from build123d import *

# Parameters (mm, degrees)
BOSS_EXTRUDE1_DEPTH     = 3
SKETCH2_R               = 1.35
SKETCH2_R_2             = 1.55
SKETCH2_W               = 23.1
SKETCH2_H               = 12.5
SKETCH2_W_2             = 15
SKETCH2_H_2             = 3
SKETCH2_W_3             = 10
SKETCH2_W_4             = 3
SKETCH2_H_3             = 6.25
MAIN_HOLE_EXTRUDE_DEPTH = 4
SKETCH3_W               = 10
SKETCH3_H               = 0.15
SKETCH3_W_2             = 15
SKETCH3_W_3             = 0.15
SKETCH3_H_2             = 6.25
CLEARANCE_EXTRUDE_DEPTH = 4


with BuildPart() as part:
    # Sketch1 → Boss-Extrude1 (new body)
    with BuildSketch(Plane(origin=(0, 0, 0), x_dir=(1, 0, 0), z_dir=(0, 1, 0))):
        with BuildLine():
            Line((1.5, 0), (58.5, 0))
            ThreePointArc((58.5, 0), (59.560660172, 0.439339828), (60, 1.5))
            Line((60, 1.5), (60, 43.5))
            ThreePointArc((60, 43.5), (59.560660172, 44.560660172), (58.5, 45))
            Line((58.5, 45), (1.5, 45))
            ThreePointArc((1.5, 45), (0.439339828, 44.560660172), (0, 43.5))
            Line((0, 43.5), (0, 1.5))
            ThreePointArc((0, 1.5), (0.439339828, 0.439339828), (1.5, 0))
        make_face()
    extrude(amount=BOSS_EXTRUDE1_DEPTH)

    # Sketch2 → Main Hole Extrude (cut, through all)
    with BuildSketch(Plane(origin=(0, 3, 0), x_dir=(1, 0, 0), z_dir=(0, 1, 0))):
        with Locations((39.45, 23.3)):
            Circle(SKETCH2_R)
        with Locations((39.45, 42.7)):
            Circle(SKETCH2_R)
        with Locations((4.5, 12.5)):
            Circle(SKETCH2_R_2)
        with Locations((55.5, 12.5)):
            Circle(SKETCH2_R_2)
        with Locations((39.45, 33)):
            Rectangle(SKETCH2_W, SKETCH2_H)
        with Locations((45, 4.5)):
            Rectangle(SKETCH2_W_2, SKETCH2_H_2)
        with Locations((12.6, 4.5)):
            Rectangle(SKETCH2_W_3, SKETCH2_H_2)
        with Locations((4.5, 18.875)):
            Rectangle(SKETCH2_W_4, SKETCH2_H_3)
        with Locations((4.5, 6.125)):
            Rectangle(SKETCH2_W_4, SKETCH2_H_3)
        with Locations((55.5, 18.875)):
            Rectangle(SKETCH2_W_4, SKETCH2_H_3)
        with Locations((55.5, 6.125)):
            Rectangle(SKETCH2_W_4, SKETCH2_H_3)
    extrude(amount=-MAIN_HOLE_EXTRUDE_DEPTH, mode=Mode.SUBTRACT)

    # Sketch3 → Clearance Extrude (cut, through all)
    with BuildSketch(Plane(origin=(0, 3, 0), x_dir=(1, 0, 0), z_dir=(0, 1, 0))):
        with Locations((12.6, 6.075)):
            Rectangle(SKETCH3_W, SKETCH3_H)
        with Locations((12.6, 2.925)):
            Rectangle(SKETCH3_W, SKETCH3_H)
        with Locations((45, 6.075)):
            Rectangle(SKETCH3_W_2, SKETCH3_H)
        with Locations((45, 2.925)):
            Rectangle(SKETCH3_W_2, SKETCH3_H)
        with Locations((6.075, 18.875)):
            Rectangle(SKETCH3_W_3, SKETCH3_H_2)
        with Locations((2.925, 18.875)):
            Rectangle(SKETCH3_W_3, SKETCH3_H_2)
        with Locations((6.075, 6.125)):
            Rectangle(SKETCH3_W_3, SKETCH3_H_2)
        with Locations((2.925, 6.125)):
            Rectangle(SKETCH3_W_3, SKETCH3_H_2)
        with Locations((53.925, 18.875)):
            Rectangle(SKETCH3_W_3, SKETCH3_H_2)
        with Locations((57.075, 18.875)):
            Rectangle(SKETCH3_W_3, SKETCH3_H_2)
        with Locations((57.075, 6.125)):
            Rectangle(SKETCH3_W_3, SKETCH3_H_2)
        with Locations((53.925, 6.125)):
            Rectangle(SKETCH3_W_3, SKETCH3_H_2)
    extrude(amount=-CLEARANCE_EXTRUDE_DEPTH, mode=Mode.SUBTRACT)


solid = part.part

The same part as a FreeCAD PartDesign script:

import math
import FreeCAD as App
import Part
import Sketcher
from FreeCAD import Vector
Q = App.Units.Quantity


def add_polygon(sketch, points):
    """Adds a closed chain of lines whose ends are joined by coincident constraints."""
    first, n = sketch.GeometryCount, len(points)
    for a, b in zip(points, points[1:] + points[:1]):
        sketch.addGeometry(Part.LineSegment(App.Vector(*a, 0), App.Vector(*b, 0)), False)
    for i in range(n):
        sketch.addConstraint(Sketcher.Constraint("Coincident", first + i, 2, first + (i + 1) % n, 1))

doc = App.newDocument("Part")
body = doc.addObject("PartDesign::Body", "Body")

# Sketch on XZ plane
sketch1 = body.newObject("Sketcher::SketchObject", "Sketch")
sketch1.AttachmentSupport = (doc.getObject("XZ_Plane"), [""])
sketch1.MapMode = "FlatFace"
sketch1.addGeometry(Part.LineSegment(Vector(1.5, 0, 0), Vector(58.5, 0, 0)), False)
sketch1.addGeometry(Part.ArcOfCircle(Part.Circle(Vector(58.5, -1.5, 0), Vector(0, 0, 1), 1.5), math.radians(0), math.radians(90)), False)
sketch1.addGeometry(Part.LineSegment(Vector(60, -1.5, 0), Vector(60, -43.5, 0)), False)
sketch1.addGeometry(Part.ArcOfCircle(Part.Circle(Vector(58.5, -43.5, 0), Vector(0, 0, 1), 1.5), math.radians(-90), math.radians(0)), False)
sketch1.addGeometry(Part.LineSegment(Vector(58.5, -45, 0), Vector(1.5, -45, 0)), False)
sketch1.addGeometry(Part.ArcOfCircle(Part.Circle(Vector(1.5, -43.5, 0), Vector(0, 0, 1), 1.5), math.radians(180), math.radians(270)), False)
sketch1.addGeometry(Part.LineSegment(Vector(0, -43.5, 0), Vector(0, -1.5, 0)), False)
sketch1.addGeometry(Part.ArcOfCircle(Part.Circle(Vector(1.5, -1.5, 0), Vector(0, 0, 1), 1.5), math.radians(90), math.radians(180)), False)
sketch1.addConstraint(Sketcher.Constraint("Tangent", 0, 2, 1, 2))
sketch1.addConstraint(Sketcher.Constraint("Tangent", 1, 1, 2, 1))
sketch1.addConstraint(Sketcher.Constraint("Tangent", 2, 2, 3, 2))
sketch1.addConstraint(Sketcher.Constraint("Tangent", 3, 1, 4, 1))
sketch1.addConstraint(Sketcher.Constraint("Tangent", 4, 2, 5, 2))
sketch1.addConstraint(Sketcher.Constraint("Tangent", 5, 1, 6, 1))
sketch1.addConstraint(Sketcher.Constraint("Tangent", 6, 2, 7, 2))
sketch1.addConstraint(Sketcher.Constraint("Tangent", 7, 1, 0, 1))
sketch1.addConstraint(Sketcher.Constraint("Horizontal", 0))
sketch1.addConstraint(Sketcher.Constraint("Vertical", 2))
sketch1.addConstraint(Sketcher.Constraint("Horizontal", 4))
sketch1.addConstraint(Sketcher.Constraint("Vertical", 6))
sketch1.addConstraint(Sketcher.Constraint("Equal", 1, 3))
sketch1.addConstraint(Sketcher.Constraint("Equal", 3, 5))
sketch1.addConstraint(Sketcher.Constraint("Equal", 5, 7))
sketch1.addConstraint(Sketcher.Constraint("PointOnObject", 0, 2, -1))
sketch1.addConstraint(Sketcher.Constraint("PointOnObject", 5, 1, -2))
sketch1.addConstraint(Sketcher.Constraint("Radius", 1, Q("1.5 mm")))
sketch1.addConstraint(Sketcher.Constraint("DistanceX", 0, 1, 0, 2, Q("57 mm")))
sketch1.addConstraint(Sketcher.Constraint("DistanceY", 2, 2, 2, 1, Q("42 mm")))
pad1 = body.newObject("PartDesign::Pad", "Pad")
pad1.Profile = sketch1
pad1.Length = 3
pad1.Reversed = True

# Sketch on XZ plane
sketch2 = body.newObject("Sketcher::SketchObject", "Sketch001")
sketch2.AttachmentSupport = (doc.getObject("XZ_Plane"), [""])
sketch2.MapMode = "FlatFace"
sketch2.AttachmentOffset = App.Placement(Vector(0, 0, -3), App.Rotation())
sketch2.addGeometry(Part.Circle(Vector(39.5, -23.3, 0), Vector(0, 0, 1), 1.4), False)  # 0
sketch2.addGeometry(Part.Circle(Vector(39.5, -42.7, 0), Vector(0, 0, 1), 1.4), False)  # 1
sketch2.addGeometry(Part.Circle(Vector(4.5, -12.5, 0), Vector(0, 0, 1), 1.6), False)  # 2
sketch2.addGeometry(Part.Circle(Vector(55.5, -12.5, 0), Vector(0, 0, 1), 1.6), False)  # 3
add_polygon(sketch2, [(27.9, -39.2), (27.9, -26.8), (51, -26.8), (51, -39.2)])  # lines 4-7
add_polygon(sketch2, [(37.5, -6), (37.5, -3), (52.5, -3), (52.5, -6)])  # lines 8-11
add_polygon(sketch2, [(7.6, -6), (7.6, -3), (17.6, -3), (17.6, -6)])  # lines 12-15
add_polygon(sketch2, [(3, -22), (3, -15.8), (6, -15.8), (6, -22)])  # lines 16-19
add_polygon(sketch2, [(3, -9.2), (3, -3), (6, -3), (6, -9.2)])  # lines 20-23
add_polygon(sketch2, [(54, -22), (54, -15.8), (57, -15.8), (57, -22)])  # lines 24-27
add_polygon(sketch2, [(54, -9.2), (54, -3), (57, -3), (57, -9.2)])  # lines 28-31
sketch2.addConstraint(Sketcher.Constraint("Vertical", 4))
sketch2.addConstraint(Sketcher.Constraint("Horizontal", 5))
sketch2.addConstraint(Sketcher.Constraint("Vertical", 6))
sketch2.addConstraint(Sketcher.Constraint("Horizontal", 7))
sketch2.addConstraint(Sketcher.Constraint("Vertical", 8))
sketch2.addConstraint(Sketcher.Constraint("Horizontal", 9))
sketch2.addConstraint(Sketcher.Constraint("Vertical", 10))
sketch2.addConstraint(Sketcher.Constraint("Horizontal", 11))
sketch2.addConstraint(Sketcher.Constraint("Vertical", 12))
sketch2.addConstraint(Sketcher.Constraint("Horizontal", 13))
sketch2.addConstraint(Sketcher.Constraint("Vertical", 14))
sketch2.addConstraint(Sketcher.Constraint("Horizontal", 15))
sketch2.addConstraint(Sketcher.Constraint("Vertical", 16))
sketch2.addConstraint(Sketcher.Constraint("Horizontal", 17))
sketch2.addConstraint(Sketcher.Constraint("Vertical", 18))
sketch2.addConstraint(Sketcher.Constraint("Horizontal", 19))
sketch2.addConstraint(Sketcher.Constraint("Vertical", 20))
sketch2.addConstraint(Sketcher.Constraint("Horizontal", 21))
sketch2.addConstraint(Sketcher.Constraint("Vertical", 22))
sketch2.addConstraint(Sketcher.Constraint("Horizontal", 23))
sketch2.addConstraint(Sketcher.Constraint("Vertical", 24))
sketch2.addConstraint(Sketcher.Constraint("Horizontal", 25))
sketch2.addConstraint(Sketcher.Constraint("Vertical", 26))
sketch2.addConstraint(Sketcher.Constraint("Horizontal", 27))
sketch2.addConstraint(Sketcher.Constraint("Vertical", 28))
sketch2.addConstraint(Sketcher.Constraint("Horizontal", 29))
sketch2.addConstraint(Sketcher.Constraint("Vertical", 30))
sketch2.addConstraint(Sketcher.Constraint("Horizontal", 31))
sketch2.addConstraint(Sketcher.Constraint("Equal", 0, 1))
sketch2.addConstraint(Sketcher.Constraint("Equal", 2, 3))
sketch2.addConstraint(Sketcher.Constraint("Horizontal", 2, 3, 3, 3))
sketch2.addConstraint(Sketcher.Constraint("Horizontal", 9, 2, 12, 2))
sketch2.addConstraint(Sketcher.Constraint("Horizontal", 11, 2, 14, 2))
sketch2.addConstraint(Sketcher.Constraint("Horizontal", 13, 2, 20, 2))
sketch2.addConstraint(Sketcher.Constraint("Horizontal", 17, 2, 24, 2))
sketch2.addConstraint(Sketcher.Constraint("Horizontal", 19, 2, 26, 2))
sketch2.addConstraint(Sketcher.Constraint("Horizontal", 21, 2, 28, 2))
sketch2.addConstraint(Sketcher.Constraint("Horizontal", 23, 2, 30, 2))
sketch2.addConstraint(Sketcher.Constraint("Vertical", 0, 3, 1, 3))
sketch2.addConstraint(Sketcher.Constraint("Vertical", 19, 2, 20, 2))
sketch2.addConstraint(Sketcher.Constraint("Vertical", 18, 2, 21, 2))
sketch2.addConstraint(Sketcher.Constraint("Vertical", 27, 2, 28, 2))
sketch2.addConstraint(Sketcher.Constraint("Vertical", 26, 2, 29, 2))
sketch2.addConstraint(Sketcher.Constraint("Equal", 23, 25))
sketch2.addConstraint(Sketcher.Constraint("Equal", 31, 8))
sketch2.addConstraint(Sketcher.Constraint("Equal", 18, 20))
sketch2.addConstraint(Sketcher.Constraint("Diameter", 0, Q("2.7 mm")))
sketch2.addConstraint(Sketcher.Constraint("Diameter", 2, Q("3.1 mm")))
sketch2.addConstraint(Sketcher.Constraint("DistanceX", 9, 1, 9, 2, Q("15 mm")))
sketch2.addConstraint(Sketcher.Constraint("DistanceX", 13, 1, 13, 2, Q("10 mm")))
sketch2.addConstraint(Sketcher.Constraint("DistanceX", 17, 1, 17, 2, Q("3 mm")))
sketch2.addConstraint(Sketcher.Constraint("DistanceX", 5, 1, 5, 2, Q("23.1 mm")))
sketch2.addConstraint(Sketcher.Constraint("DistanceY", 4, 1, 4, 2, Q("12.5 mm")))
sketch2.addConstraint(Sketcher.Constraint("DistanceX", -1, 1, 5, 2, Q("51 mm")))
sketch2.addConstraint(Sketcher.Constraint("DistanceY", 8, 2, -1, 1, Q("3 mm")))
sketch2.addConstraint(Sketcher.Constraint("DistanceX", -1, 1, 16, 2, Q("3 mm")))
sketch2.addConstraint(Sketcher.Constraint("DistanceY", 18, 2, -1, 1, Q("22 mm")))
sketch2.addConstraint(Sketcher.Constraint("DistanceX", -1, 1, 24, 2, Q("54 mm")))
sketch2.addConstraint(Sketcher.Constraint("DistanceX", 2, 3, 3, 3, Q("51 mm")))
sketch2.addConstraint(Sketcher.Constraint("DistanceX", 8, 2, 3, 3, Q("18 mm")))
sketch2.addConstraint(Sketcher.Constraint("DistanceY", 5, 2, 24, 2, Q("11 mm")))
sketch2.addConstraint(Sketcher.Constraint("DistanceY", 16, 1, 16, 2, Q("6.25 mm")))
sketch2.addConstraint(Sketcher.Constraint("DistanceY", 0, 3, -1, 1, Q("23.3 mm")))
sketch2.addConstraint(Sketcher.Constraint("DistanceY", 1, 3, -1, 1, Q("42.7 mm")))
sketch2.addConstraint(Sketcher.Constraint("DistanceX", -1, 1, 2, 3, Q("4.5 mm")))
sketch2.addConstraint(Sketcher.Constraint("DistanceY", 2, 3, -1, 1, Q("12.5 mm")))
sketch2.addConstraint(Sketcher.Constraint("DistanceX", -1, 1, 12, 2, Q("7.6 mm")))
sketch2.addConstraint(Sketcher.Constraint("DistanceX", -1, 1, 0, 3, Q("39.45 mm")))
pocket1 = body.newObject("PartDesign::Pocket", "Pocket")
pocket1.Profile = sketch2
pocket1.Type = "ThroughAll"
pocket1.Reversed = True

# Sketch on XZ plane
sketch3 = body.newObject("Sketcher::SketchObject", "Sketch002")
sketch3.AttachmentSupport = (doc.getObject("XZ_Plane"), [""])
sketch3.MapMode = "FlatFace"
sketch3.AttachmentOffset = App.Placement(Vector(0, 0, -3), App.Rotation())
add_polygon(sketch3, [(7.6, -6.15), (7.6, -6), (17.6, -6), (17.6, -6.15)])  # lines 0-3
add_polygon(sketch3, [(7.6, -3), (7.6, -2.85), (17.6, -2.85), (17.6, -3)])  # lines 4-7
add_polygon(sketch3, [(37.5, -6.15), (37.5, -6), (52.5, -6), (52.5, -6.15)])  # lines 8-11
add_polygon(sketch3, [(37.5, -3), (37.5, -2.85), (52.5, -2.85), (52.5, -3)])  # lines 12-15
add_polygon(sketch3, [(6, -22), (6, -15.75), (6.15, -15.75), (6.15, -22)])  # lines 16-19
add_polygon(sketch3, [(2.85, -22), (2.85, -15.75), (3, -15.75), (3, -22)])  # lines 20-23
add_polygon(sketch3, [(6, -9.25), (6, -3), (6.15, -3), (6.15, -9.25)])  # lines 24-27
add_polygon(sketch3, [(2.85, -9.25), (2.85, -3), (3, -3), (3, -9.25)])  # lines 28-31
add_polygon(sketch3, [(53.85, -22), (53.85, -15.75), (54, -15.75), (54, -22)])  # lines 32-35
add_polygon(sketch3, [(57, -22), (57, -15.75), (57.15, -15.75), (57.15, -22)])  # lines 36-39
add_polygon(sketch3, [(57, -9.25), (57, -3), (57.15, -3), (57.15, -9.25)])  # lines 40-43
add_polygon(sketch3, [(53.85, -9.25), (53.85, -3), (54, -3), (54, -9.25)])  # lines 44-47
sketch3.addConstraint(Sketcher.Constraint("Vertical", 0))
sketch3.addConstraint(Sketcher.Constraint("Horizontal", 1))
sketch3.addConstraint(Sketcher.Constraint("Vertical", 2))
sketch3.addConstraint(Sketcher.Constraint("Horizontal", 3))
sketch3.addConstraint(Sketcher.Constraint("Vertical", 4))
sketch3.addConstraint(Sketcher.Constraint("Horizontal", 5))
sketch3.addConstraint(Sketcher.Constraint("Vertical", 6))
sketch3.addConstraint(Sketcher.Constraint("Horizontal", 7))
sketch3.addConstraint(Sketcher.Constraint("Vertical", 8))
sketch3.addConstraint(Sketcher.Constraint("Horizontal", 9))
sketch3.addConstraint(Sketcher.Constraint("Vertical", 10))
sketch3.addConstraint(Sketcher.Constraint("Horizontal", 11))
sketch3.addConstraint(Sketcher.Constraint("Vertical", 12))
sketch3.addConstraint(Sketcher.Constraint("Horizontal", 13))
sketch3.addConstraint(Sketcher.Constraint("Vertical", 14))
sketch3.addConstraint(Sketcher.Constraint("Horizontal", 15))
sketch3.addConstraint(Sketcher.Constraint("Vertical", 16))
sketch3.addConstraint(Sketcher.Constraint("Horizontal", 17))
sketch3.addConstraint(Sketcher.Constraint("Vertical", 18))
sketch3.addConstraint(Sketcher.Constraint("Horizontal", 19))
sketch3.addConstraint(Sketcher.Constraint("Vertical", 20))
sketch3.addConstraint(Sketcher.Constraint("Horizontal", 21))
sketch3.addConstraint(Sketcher.Constraint("Vertical", 22))
sketch3.addConstraint(Sketcher.Constraint("Horizontal", 23))
sketch3.addConstraint(Sketcher.Constraint("Vertical", 24))
sketch3.addConstraint(Sketcher.Constraint("Horizontal", 25))
sketch3.addConstraint(Sketcher.Constraint("Vertical", 26))
sketch3.addConstraint(Sketcher.Constraint("Horizontal", 27))
sketch3.addConstraint(Sketcher.Constraint("Vertical", 28))
sketch3.addConstraint(Sketcher.Constraint("Horizontal", 29))
sketch3.addConstraint(Sketcher.Constraint("Vertical", 30))
sketch3.addConstraint(Sketcher.Constraint("Horizontal", 31))
sketch3.addConstraint(Sketcher.Constraint("Vertical", 32))
sketch3.addConstraint(Sketcher.Constraint("Horizontal", 33))
sketch3.addConstraint(Sketcher.Constraint("Vertical", 34))
sketch3.addConstraint(Sketcher.Constraint("Horizontal", 35))
sketch3.addConstraint(Sketcher.Constraint("Vertical", 36))
sketch3.addConstraint(Sketcher.Constraint("Horizontal", 37))
sketch3.addConstraint(Sketcher.Constraint("Vertical", 38))
sketch3.addConstraint(Sketcher.Constraint("Horizontal", 39))
sketch3.addConstraint(Sketcher.Constraint("Vertical", 40))
sketch3.addConstraint(Sketcher.Constraint("Horizontal", 41))
sketch3.addConstraint(Sketcher.Constraint("Vertical", 42))
sketch3.addConstraint(Sketcher.Constraint("Horizontal", 43))
sketch3.addConstraint(Sketcher.Constraint("Vertical", 44))
sketch3.addConstraint(Sketcher.Constraint("Horizontal", 45))
sketch3.addConstraint(Sketcher.Constraint("Vertical", 46))
sketch3.addConstraint(Sketcher.Constraint("Horizontal", 47))
sketch3.addConstraint(Sketcher.Constraint("Horizontal", 1, 2, 8, 2))
sketch3.addConstraint(Sketcher.Constraint("Horizontal", 3, 2, 10, 2))
sketch3.addConstraint(Sketcher.Constraint("Horizontal", 5, 2, 12, 2))
sketch3.addConstraint(Sketcher.Constraint("Horizontal", 7, 2, 14, 2))
sketch3.addConstraint(Sketcher.Constraint("Horizontal", 17, 2, 20, 2))
sketch3.addConstraint(Sketcher.Constraint("Horizontal", 19, 2, 22, 2))
sketch3.addConstraint(Sketcher.Constraint("Horizontal", 15, 2, 24, 2))
sketch3.addConstraint(Sketcher.Constraint("Horizontal", 25, 2, 28, 2))
sketch3.addConstraint(Sketcher.Constraint("Horizontal", 27, 2, 30, 2))
sketch3.addConstraint(Sketcher.Constraint("Horizontal", 21, 2, 32, 2))
sketch3.addConstraint(Sketcher.Constraint("Horizontal", 23, 2, 34, 2))
sketch3.addConstraint(Sketcher.Constraint("Horizontal", 33, 2, 36, 2))
sketch3.addConstraint(Sketcher.Constraint("Horizontal", 35, 2, 38, 2))
sketch3.addConstraint(Sketcher.Constraint("Horizontal", 29, 2, 40, 2))
sketch3.addConstraint(Sketcher.Constraint("Horizontal", 31, 2, 42, 2))
sketch3.addConstraint(Sketcher.Constraint("Horizontal", 41, 2, 44, 2))
sketch3.addConstraint(Sketcher.Constraint("Horizontal", 43, 2, 46, 2))
sketch3.addConstraint(Sketcher.Constraint("Vertical", 3, 2, 4, 2))
sketch3.addConstraint(Sketcher.Constraint("Vertical", 2, 2, 5, 2))
sketch3.addConstraint(Sketcher.Constraint("Vertical", 11, 2, 12, 2))
sketch3.addConstraint(Sketcher.Constraint("Vertical", 10, 2, 13, 2))
sketch3.addConstraint(Sketcher.Constraint("Vertical", 19, 2, 24, 2))
sketch3.addConstraint(Sketcher.Constraint("Vertical", 18, 2, 25, 2))
sketch3.addConstraint(Sketcher.Constraint("Vertical", 23, 2, 28, 2))
sketch3.addConstraint(Sketcher.Constraint("Vertical", 22, 2, 29, 2))
sketch3.addConstraint(Sketcher.Constraint("Vertical", 39, 2, 40, 2))
sketch3.addConstraint(Sketcher.Constraint("Vertical", 38, 2, 41, 2))
sketch3.addConstraint(Sketcher.Constraint("Vertical", 35, 2, 44, 2))
sketch3.addConstraint(Sketcher.Constraint("Vertical", 34, 2, 45, 2))
sketch3.addConstraint(Sketcher.Constraint("Equal", 19, 21))
sketch3.addConstraint(Sketcher.Constraint("Equal", 31, 33))
sketch3.addConstraint(Sketcher.Constraint("Equal", 35, 37))
sketch3.addConstraint(Sketcher.Constraint("Equal", 47, 0))
sketch3.addConstraint(Sketcher.Constraint("Equal", 2, 4))
sketch3.addConstraint(Sketcher.Constraint("Equal", 22, 24))
sketch3.addConstraint(Sketcher.Constraint("DistanceX", 1, 1, 1, 2, Q("10 mm")))
sketch3.addConstraint(Sketcher.Constraint("DistanceX", 9, 1, 9, 2, Q("15 mm")))
sketch3.addConstraint(Sketcher.Constraint("DistanceY", 0, 2, -1, 1, Q("6 mm")))
sketch3.addConstraint(Sketcher.Constraint("DistanceY", 6, 2, -1, 1, Q("3 mm")))
sketch3.addConstraint(Sketcher.Constraint("DistanceX", -1, 1, 16, 2, Q("6 mm")))
sketch3.addConstraint(Sketcher.Constraint("DistanceY", 18, 2, -1, 1, Q("22 mm")))
sketch3.addConstraint(Sketcher.Constraint("DistanceX", -1, 1, 21, 2, Q("3 mm")))
sketch3.addConstraint(Sketcher.Constraint("DistanceX", -1, 1, 33, 2, Q("54 mm")))
sketch3.addConstraint(Sketcher.Constraint("DistanceX", -1, 1, 36, 2, Q("57 mm")))
sketch3.addConstraint(Sketcher.Constraint("DistanceX", 17, 1, 17, 2, Q("0.15 mm")))
sketch3.addConstraint(Sketcher.Constraint("DistanceY", 16, 1, 16, 2, Q("6.25 mm")))
sketch3.addConstraint(Sketcher.Constraint("DistanceX", -1, 1, 0, 2, Q("7.6 mm")))
sketch3.addConstraint(Sketcher.Constraint("DistanceX", -1, 1, 8, 2, Q("37.5 mm")))
pocket2 = body.newObject("PartDesign::Pocket", "Pocket001")
pocket2.Profile = sketch3
pocket2.Type = "ThroughAll"
pocket2.Reversed = True

doc.recompute()
